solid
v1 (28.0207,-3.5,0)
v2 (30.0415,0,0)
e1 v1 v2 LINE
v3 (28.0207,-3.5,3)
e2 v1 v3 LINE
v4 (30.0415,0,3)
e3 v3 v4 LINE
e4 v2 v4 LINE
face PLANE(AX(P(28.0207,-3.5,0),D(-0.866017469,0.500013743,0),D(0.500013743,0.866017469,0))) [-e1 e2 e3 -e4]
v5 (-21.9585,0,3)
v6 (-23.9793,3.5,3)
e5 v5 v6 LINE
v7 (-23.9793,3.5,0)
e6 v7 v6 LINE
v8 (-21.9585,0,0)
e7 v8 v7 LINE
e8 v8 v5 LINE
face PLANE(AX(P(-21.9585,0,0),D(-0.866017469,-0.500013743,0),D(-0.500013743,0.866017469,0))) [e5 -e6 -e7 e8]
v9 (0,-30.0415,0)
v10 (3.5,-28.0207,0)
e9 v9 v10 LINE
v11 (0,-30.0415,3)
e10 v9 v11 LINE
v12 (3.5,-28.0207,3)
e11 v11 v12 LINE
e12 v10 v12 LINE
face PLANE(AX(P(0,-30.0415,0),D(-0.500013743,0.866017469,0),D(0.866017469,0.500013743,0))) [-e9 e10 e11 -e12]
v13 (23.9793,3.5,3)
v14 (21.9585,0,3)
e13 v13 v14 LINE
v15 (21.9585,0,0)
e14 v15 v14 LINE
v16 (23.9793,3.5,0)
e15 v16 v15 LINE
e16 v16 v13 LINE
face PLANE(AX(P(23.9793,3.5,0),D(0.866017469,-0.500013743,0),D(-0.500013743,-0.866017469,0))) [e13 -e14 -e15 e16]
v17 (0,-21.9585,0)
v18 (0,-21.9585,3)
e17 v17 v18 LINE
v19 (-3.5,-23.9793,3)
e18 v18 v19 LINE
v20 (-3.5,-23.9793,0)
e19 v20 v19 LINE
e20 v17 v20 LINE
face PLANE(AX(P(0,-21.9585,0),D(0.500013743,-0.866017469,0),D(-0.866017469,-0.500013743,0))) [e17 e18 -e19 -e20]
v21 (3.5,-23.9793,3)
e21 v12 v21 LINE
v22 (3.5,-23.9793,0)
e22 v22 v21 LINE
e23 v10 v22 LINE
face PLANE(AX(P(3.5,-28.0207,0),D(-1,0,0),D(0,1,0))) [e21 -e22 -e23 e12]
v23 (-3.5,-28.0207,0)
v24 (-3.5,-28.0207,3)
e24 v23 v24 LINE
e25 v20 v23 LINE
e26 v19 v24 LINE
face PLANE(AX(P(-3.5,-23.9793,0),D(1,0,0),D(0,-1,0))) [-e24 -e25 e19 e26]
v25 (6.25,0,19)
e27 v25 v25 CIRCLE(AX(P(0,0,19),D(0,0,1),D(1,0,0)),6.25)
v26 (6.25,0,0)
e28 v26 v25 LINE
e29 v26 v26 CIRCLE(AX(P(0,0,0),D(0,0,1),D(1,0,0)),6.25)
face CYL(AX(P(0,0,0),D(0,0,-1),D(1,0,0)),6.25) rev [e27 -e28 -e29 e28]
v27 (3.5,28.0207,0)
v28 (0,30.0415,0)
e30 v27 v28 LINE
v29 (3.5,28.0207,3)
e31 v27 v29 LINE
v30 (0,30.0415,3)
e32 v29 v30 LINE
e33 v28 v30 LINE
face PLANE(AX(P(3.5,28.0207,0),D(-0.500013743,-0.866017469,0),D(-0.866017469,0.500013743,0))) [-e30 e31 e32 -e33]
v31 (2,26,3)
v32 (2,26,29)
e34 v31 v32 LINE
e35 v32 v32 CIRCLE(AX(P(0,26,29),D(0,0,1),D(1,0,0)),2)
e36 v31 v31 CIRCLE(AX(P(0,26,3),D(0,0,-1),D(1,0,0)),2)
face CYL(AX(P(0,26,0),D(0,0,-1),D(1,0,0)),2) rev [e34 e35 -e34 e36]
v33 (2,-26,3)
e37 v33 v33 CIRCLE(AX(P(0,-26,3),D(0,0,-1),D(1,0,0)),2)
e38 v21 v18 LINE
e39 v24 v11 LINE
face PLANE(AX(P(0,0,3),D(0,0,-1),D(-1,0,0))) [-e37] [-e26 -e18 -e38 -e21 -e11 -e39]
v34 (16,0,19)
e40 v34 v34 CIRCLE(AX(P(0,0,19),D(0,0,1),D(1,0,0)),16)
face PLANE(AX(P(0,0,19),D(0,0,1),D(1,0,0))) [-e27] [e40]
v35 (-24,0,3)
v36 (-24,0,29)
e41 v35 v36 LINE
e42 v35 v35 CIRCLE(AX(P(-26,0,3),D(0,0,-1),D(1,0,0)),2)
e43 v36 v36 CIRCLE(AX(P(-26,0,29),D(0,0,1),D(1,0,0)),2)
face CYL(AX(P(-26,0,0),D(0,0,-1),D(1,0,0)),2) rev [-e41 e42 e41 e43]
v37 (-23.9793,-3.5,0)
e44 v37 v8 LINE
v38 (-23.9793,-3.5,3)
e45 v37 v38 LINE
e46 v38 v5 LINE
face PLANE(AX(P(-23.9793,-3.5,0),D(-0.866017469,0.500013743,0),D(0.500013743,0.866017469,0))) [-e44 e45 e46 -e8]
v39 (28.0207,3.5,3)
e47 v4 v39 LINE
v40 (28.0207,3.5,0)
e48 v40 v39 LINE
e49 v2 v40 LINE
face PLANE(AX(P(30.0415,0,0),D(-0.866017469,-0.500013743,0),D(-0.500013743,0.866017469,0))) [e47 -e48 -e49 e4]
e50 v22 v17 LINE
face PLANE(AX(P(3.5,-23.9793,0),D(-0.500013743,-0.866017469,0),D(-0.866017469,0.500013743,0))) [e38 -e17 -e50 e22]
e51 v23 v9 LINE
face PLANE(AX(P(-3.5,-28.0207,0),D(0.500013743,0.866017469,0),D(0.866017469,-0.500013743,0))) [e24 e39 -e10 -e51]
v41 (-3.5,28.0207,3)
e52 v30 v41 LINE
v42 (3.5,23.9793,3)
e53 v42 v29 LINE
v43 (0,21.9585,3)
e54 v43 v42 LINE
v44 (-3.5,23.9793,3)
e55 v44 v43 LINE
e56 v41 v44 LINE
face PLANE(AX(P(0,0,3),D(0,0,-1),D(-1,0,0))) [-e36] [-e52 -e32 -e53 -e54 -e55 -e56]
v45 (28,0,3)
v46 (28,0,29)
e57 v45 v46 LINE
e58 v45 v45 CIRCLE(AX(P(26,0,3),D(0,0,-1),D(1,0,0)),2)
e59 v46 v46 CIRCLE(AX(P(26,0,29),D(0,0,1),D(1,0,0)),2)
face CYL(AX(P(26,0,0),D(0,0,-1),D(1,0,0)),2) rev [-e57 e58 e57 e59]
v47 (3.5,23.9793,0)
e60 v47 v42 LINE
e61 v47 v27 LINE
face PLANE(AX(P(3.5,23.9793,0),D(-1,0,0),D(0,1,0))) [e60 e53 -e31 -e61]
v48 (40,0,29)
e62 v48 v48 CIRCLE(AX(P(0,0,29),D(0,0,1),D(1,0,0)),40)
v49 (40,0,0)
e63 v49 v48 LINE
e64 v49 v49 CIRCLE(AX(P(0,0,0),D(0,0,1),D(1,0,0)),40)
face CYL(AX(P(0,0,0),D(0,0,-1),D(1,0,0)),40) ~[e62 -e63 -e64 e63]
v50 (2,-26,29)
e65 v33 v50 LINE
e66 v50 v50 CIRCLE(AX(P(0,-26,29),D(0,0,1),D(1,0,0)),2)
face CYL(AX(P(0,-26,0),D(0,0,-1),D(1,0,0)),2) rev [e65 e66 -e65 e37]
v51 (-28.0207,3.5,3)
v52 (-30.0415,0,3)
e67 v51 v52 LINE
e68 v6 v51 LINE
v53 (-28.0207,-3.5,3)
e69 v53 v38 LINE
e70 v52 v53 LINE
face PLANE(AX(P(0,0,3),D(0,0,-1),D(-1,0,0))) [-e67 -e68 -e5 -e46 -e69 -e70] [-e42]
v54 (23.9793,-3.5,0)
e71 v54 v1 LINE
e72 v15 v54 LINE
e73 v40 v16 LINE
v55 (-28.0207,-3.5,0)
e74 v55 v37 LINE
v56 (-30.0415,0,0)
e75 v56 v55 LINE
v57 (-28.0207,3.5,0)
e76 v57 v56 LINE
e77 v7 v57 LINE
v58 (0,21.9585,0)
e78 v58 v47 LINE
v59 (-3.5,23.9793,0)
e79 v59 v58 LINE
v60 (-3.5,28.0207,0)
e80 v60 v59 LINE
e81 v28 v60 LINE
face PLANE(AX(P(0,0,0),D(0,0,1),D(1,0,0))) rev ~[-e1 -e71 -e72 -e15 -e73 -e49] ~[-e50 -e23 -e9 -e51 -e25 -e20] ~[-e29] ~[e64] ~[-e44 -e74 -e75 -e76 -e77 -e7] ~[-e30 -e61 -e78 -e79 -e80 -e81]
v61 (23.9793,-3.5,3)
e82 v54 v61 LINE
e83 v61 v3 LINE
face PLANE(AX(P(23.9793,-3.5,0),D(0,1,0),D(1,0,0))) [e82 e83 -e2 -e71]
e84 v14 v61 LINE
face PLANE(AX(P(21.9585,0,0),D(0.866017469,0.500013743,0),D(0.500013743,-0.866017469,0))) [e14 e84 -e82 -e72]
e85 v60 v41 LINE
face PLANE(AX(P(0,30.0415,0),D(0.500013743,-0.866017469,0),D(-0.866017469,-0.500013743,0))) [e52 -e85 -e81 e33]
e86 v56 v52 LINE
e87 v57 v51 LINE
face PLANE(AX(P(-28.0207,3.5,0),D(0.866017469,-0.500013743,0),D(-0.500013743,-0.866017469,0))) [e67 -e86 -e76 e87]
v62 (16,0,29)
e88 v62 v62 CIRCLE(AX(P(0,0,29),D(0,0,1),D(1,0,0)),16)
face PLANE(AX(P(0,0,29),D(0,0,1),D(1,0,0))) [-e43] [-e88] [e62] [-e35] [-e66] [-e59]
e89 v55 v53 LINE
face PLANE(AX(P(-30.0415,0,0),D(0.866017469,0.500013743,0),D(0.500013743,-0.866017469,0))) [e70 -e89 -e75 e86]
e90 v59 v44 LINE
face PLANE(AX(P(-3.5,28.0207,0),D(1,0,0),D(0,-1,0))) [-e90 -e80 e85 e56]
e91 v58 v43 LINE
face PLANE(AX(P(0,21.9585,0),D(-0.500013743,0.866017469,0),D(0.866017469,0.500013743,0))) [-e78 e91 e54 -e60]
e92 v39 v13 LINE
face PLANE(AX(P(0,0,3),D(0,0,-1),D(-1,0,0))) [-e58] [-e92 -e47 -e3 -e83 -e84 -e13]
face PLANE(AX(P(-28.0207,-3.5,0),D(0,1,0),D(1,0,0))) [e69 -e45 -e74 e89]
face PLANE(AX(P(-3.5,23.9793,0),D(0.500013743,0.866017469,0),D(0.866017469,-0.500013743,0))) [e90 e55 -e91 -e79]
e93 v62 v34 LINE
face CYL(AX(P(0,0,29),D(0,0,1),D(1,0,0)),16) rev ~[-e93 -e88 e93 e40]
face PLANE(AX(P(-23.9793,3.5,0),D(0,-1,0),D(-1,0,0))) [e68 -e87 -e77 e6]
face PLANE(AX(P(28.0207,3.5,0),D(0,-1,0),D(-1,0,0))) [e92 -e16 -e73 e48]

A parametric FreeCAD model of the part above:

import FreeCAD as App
import Part
import Sketcher

V = App.Vector
Q = App.Units.Quantity


def add_polygon(sketch, points):
    """Adds a closed chain of lines whose ends are joined by coincident constraints."""
    first, n = sketch.GeometryCount, len(points)
    for a, b in zip(points, points[1:] + points[:1]):
        sketch.addGeometry(Part.LineSegment(App.Vector(*a, 0), App.Vector(*b, 0)), False)
    for i in range(n):
        sketch.addConstraint(Sketcher.Constraint("Coincident", first + i, 2, first + (i + 1) % n, 1))

doc = App.newDocument("Part")
body = doc.addObject("PartDesign::Body", "Body")

sketch1 = doc.addObject("Sketcher::SketchObject", "Sketch")
body.addObject(sketch1)
sketch1.AttachmentSupport = (doc.XY_Plane, [""])
sketch1.MapMode = "FlatFace"
sketch1.addGeometry([
    Part.Circle(V(0, 0, 0), V(0, 0, 1), 40),
    Part.Circle(V(0, -26, 0), V(0, 0, 1), 2),
    Part.Circle(V(-26, 0, 0), V(0, 0, 1), 2),
    Part.Circle(V(0, 0, 0), V(0, 0, 1), 6.25),
    Part.Circle(V(26, 0, 0), V(0, 0, 1), 2),
    Part.Circle(V(0, 26, 0), V(0, 0, 1), 2),
], False)
sketch1.addConstraint([
    Sketcher.Constraint("Coincident", 0, 3, -1, 1),
    Sketcher.Constraint("Coincident", 3, 3, -1, 1),
    Sketcher.Constraint("Equal", 1, 2),
    Sketcher.Constraint("Equal", 2, 4),
    Sketcher.Constraint("Equal", 4, 5),
    Sketcher.Constraint("Symmetric", 2, 3, 4, 3, -1, 1),
    Sketcher.Constraint("Symmetric", 1, 3, 5, 3, -1, 1),
    Sketcher.Constraint("PointOnObject", 1, 3, -2),
    Sketcher.Constraint("PointOnObject", 2, 3, -1),
    Sketcher.Constraint("Diameter", 0, Q("80 mm")),
    Sketcher.Constraint("Diameter", 1, Q("4 mm")),
    Sketcher.Constraint("Diameter", 3, Q("12.5 mm")),
    Sketcher.Constraint("DistanceY", 1, 3, -1, 1, Q("26 mm")),
    Sketcher.Constraint("DistanceX", 2, 3, -1, 1, Q("26 mm")),
])
pad1 = doc.addObject("PartDesign::Pad", "Pad")
body.addObject(pad1)
pad1.Profile = sketch1
pad1.Length = 29

sketch2 = doc.addObject("Sketcher::SketchObject", "Sketch001")
body.addObject(sketch2)
sketch2.AttachmentSupport = (doc.XY_Plane, [""])
sketch2.MapMode = "FlatFace"
sketch2.AttachmentOffset = App.Placement(V(0, 0, 29), App.Rotation())
sketch2.addGeometry([
    Part.Circle(V(0, 0, 0), V(0, 0, 1), 16),
    Part.Circle(V(0, 0, 0), V(0, 0, 1), 6.25),
], False)
sketch2.addConstraint([
    Sketcher.Constraint("Coincident", 0, 3, -1, 1),
    Sketcher.Constraint("Coincident", 1, 3, -1, 1),
    Sketcher.Constraint("Diameter", 0, Q("32 mm")),
    Sketcher.Constraint("Diameter", 1, Q("12.5 mm")),
])
pocket1 = doc.addObject("PartDesign::Pocket", "Pocket")
body.addObject(pocket1)
pocket1.Profile = sketch2
pocket1.Length = 10

sketch3 = doc.addObject("Sketcher::SketchObject", "Sketch002")
body.addObject(sketch3)
sketch3.AttachmentSupport = (doc.XY_Plane, [""])
sketch3.MapMode = "FlatFace"
add_polygon(sketch3, [(0, 21.9585), (-3.5, 23.9793), (-3.5, 28.0207), (0, 30.0415), (3.5, 28.0207), (3.5, 23.9793)])
sketch3.addGeometry(Part.Circle(V(0, 26, 0), V(0, 0, 1), 2), False)
add_polygon(sketch3, [(21.9585, 0), (23.9793, 3.5), (28.0207, 3.5), (30.0415, 0), (28.0207, -3.5), (23.9793, -3.5)])
sketch3.addGeometry(Part.Circle(V(26, 0, 0), V(0, 0, 1), 2), False)
add_polygon(sketch3, [(0, -21.9585), (3.5, -23.9793), (3.5, -28.0207), (0, -30.0415), (-3.5, -28.0207), (-3.5, -23.9793)])
sketch3.addGeometry(Part.Circle(V(0, -26, 0), V(0, 0, 1), 2), False)
add_polygon(sketch3, [(-21.9585, 0), (-23.9793, -3.5), (-28.0207, -3.5), (-30.0415, 0), (-28.0207, 3.5), (-23.9793, 3.5)])
sketch3.addGeometry(Part.Circle(V(-26, 0, 0), V(0, 0, 1), 2), False)
sketch3.addConstraint([
    Sketcher.Constraint("Vertical", 1),
    Sketcher.Constraint("Vertical", 4),
    Sketcher.Constraint("Horizontal", 8),
    Sketcher.Constraint("Horizontal", 11),
    Sketcher.Constraint("Vertical", 15),
    Sketcher.Constraint("Vertical", 18),
    Sketcher.Constraint("Horizontal", 22),
    Sketcher.Constraint("Horizontal", 25),
    Sketcher.Constraint("Equal", 6, 13),
    Sketcher.Constraint("Equal", 13, 20),
    Sketcher.Constraint("Equal", 20, 27),
    Sketcher.Constraint("Symmetric", 6, 3, 20, 3, -1, 1),
    Sketcher.Constraint("Symmetric", 13, 3, 27, 3, -1, 1),
    Sketcher.Constraint("Symmetric", 0, 2, 14, 2, -1, 1),
    Sketcher.Constraint("Symmetric", 2, 2, 16, 2, -1, 1),
    Sketcher.Constraint("Symmetric", 3, 2, 17, 2, -1, 1),
    Sketcher.Constraint("Symmetric", 5, 2, 19, 2, -1, 1),
    Sketcher.Constraint("Symmetric", 7, 2, 21, 2, -1, 1),
    Sketcher.Constraint("Symmetric", 9, 2, 23, 2, -1, 1),
    Sketcher.Constraint("Symmetric", 10, 2, 24, 2, -1, 1),
    Sketcher.Constraint("Symmetric", 12, 2, 26, 2, -1, 1),
    Sketcher.Constraint("Symmetric", 1, 2, 3, 2, -2),
    Sketcher.Constraint("Symmetric", 11, 2, 21, 2, -2),
    Sketcher.Constraint("PointOnObject", 6, 3, -2),
    Sketcher.Constraint("PointOnObject", 13, 3, -1),
    Sketcher.Constraint("PointOnObject", 2, 2, -2),
    Sketcher.Constraint("PointOnObject", 5, 2, -2),
    Sketcher.Constraint("PointOnObject", 9, 2, -1),
    Sketcher.Constraint("PointOnObject", 12, 2, -1),
    Sketcher.Constraint("Parallel", 0, 3),
    Sketcher.Constraint("Parallel", 2, 5),
    Sketcher.Constraint("Perpendicular", 3, 7),
    Sketcher.Constraint("Perpendicular", 5, 9),
    Sketcher.Constraint("Parallel", 7, 10),
    Sketcher.Constraint("Perpendicular", 12, 16),
    Sketcher.Constraint("Parallel", 16, 19),
    Sketcher.Constraint("Perpendicular", 19, 23),
    Sketcher.Constraint("Parallel", 23, 26),
    Sketcher.Constraint("Equal", 25, 1),
    Sketcher.Constraint("Equal", 5, 7),
    Sketcher.Constraint("Diameter", 6, Q("4 mm")),
    Sketcher.Constraint("DistanceX", 1, 2, 3, 2, Q("7 mm")),
    Sketcher.Constraint("Angle", 0, Q("149.999 deg")),
    Sketcher.Constraint("DistanceY", -1, 1, 6, 3, Q("26 mm")),
    Sketcher.Constraint("DistanceX", -1, 1, 13, 3, Q("26 mm")),
    Sketcher.Constraint("DistanceX", 8, 1, 8, 2, Q("4.0414 mm")),
    Sketcher.Constraint("DistanceY", -1, 1, 0, 2, Q("23.9793 mm")),
    Sketcher.Constraint("DistanceX", -1, 1, 7, 2, Q("23.9793 mm")),
])
pocket2 = doc.addObject("PartDesign::Pocket", "Pocket001")
body.addObject(pocket2)
pocket2.Profile = sketch3
pocket2.Length = 3
pocket2.Reversed = True

doc.recompute()
